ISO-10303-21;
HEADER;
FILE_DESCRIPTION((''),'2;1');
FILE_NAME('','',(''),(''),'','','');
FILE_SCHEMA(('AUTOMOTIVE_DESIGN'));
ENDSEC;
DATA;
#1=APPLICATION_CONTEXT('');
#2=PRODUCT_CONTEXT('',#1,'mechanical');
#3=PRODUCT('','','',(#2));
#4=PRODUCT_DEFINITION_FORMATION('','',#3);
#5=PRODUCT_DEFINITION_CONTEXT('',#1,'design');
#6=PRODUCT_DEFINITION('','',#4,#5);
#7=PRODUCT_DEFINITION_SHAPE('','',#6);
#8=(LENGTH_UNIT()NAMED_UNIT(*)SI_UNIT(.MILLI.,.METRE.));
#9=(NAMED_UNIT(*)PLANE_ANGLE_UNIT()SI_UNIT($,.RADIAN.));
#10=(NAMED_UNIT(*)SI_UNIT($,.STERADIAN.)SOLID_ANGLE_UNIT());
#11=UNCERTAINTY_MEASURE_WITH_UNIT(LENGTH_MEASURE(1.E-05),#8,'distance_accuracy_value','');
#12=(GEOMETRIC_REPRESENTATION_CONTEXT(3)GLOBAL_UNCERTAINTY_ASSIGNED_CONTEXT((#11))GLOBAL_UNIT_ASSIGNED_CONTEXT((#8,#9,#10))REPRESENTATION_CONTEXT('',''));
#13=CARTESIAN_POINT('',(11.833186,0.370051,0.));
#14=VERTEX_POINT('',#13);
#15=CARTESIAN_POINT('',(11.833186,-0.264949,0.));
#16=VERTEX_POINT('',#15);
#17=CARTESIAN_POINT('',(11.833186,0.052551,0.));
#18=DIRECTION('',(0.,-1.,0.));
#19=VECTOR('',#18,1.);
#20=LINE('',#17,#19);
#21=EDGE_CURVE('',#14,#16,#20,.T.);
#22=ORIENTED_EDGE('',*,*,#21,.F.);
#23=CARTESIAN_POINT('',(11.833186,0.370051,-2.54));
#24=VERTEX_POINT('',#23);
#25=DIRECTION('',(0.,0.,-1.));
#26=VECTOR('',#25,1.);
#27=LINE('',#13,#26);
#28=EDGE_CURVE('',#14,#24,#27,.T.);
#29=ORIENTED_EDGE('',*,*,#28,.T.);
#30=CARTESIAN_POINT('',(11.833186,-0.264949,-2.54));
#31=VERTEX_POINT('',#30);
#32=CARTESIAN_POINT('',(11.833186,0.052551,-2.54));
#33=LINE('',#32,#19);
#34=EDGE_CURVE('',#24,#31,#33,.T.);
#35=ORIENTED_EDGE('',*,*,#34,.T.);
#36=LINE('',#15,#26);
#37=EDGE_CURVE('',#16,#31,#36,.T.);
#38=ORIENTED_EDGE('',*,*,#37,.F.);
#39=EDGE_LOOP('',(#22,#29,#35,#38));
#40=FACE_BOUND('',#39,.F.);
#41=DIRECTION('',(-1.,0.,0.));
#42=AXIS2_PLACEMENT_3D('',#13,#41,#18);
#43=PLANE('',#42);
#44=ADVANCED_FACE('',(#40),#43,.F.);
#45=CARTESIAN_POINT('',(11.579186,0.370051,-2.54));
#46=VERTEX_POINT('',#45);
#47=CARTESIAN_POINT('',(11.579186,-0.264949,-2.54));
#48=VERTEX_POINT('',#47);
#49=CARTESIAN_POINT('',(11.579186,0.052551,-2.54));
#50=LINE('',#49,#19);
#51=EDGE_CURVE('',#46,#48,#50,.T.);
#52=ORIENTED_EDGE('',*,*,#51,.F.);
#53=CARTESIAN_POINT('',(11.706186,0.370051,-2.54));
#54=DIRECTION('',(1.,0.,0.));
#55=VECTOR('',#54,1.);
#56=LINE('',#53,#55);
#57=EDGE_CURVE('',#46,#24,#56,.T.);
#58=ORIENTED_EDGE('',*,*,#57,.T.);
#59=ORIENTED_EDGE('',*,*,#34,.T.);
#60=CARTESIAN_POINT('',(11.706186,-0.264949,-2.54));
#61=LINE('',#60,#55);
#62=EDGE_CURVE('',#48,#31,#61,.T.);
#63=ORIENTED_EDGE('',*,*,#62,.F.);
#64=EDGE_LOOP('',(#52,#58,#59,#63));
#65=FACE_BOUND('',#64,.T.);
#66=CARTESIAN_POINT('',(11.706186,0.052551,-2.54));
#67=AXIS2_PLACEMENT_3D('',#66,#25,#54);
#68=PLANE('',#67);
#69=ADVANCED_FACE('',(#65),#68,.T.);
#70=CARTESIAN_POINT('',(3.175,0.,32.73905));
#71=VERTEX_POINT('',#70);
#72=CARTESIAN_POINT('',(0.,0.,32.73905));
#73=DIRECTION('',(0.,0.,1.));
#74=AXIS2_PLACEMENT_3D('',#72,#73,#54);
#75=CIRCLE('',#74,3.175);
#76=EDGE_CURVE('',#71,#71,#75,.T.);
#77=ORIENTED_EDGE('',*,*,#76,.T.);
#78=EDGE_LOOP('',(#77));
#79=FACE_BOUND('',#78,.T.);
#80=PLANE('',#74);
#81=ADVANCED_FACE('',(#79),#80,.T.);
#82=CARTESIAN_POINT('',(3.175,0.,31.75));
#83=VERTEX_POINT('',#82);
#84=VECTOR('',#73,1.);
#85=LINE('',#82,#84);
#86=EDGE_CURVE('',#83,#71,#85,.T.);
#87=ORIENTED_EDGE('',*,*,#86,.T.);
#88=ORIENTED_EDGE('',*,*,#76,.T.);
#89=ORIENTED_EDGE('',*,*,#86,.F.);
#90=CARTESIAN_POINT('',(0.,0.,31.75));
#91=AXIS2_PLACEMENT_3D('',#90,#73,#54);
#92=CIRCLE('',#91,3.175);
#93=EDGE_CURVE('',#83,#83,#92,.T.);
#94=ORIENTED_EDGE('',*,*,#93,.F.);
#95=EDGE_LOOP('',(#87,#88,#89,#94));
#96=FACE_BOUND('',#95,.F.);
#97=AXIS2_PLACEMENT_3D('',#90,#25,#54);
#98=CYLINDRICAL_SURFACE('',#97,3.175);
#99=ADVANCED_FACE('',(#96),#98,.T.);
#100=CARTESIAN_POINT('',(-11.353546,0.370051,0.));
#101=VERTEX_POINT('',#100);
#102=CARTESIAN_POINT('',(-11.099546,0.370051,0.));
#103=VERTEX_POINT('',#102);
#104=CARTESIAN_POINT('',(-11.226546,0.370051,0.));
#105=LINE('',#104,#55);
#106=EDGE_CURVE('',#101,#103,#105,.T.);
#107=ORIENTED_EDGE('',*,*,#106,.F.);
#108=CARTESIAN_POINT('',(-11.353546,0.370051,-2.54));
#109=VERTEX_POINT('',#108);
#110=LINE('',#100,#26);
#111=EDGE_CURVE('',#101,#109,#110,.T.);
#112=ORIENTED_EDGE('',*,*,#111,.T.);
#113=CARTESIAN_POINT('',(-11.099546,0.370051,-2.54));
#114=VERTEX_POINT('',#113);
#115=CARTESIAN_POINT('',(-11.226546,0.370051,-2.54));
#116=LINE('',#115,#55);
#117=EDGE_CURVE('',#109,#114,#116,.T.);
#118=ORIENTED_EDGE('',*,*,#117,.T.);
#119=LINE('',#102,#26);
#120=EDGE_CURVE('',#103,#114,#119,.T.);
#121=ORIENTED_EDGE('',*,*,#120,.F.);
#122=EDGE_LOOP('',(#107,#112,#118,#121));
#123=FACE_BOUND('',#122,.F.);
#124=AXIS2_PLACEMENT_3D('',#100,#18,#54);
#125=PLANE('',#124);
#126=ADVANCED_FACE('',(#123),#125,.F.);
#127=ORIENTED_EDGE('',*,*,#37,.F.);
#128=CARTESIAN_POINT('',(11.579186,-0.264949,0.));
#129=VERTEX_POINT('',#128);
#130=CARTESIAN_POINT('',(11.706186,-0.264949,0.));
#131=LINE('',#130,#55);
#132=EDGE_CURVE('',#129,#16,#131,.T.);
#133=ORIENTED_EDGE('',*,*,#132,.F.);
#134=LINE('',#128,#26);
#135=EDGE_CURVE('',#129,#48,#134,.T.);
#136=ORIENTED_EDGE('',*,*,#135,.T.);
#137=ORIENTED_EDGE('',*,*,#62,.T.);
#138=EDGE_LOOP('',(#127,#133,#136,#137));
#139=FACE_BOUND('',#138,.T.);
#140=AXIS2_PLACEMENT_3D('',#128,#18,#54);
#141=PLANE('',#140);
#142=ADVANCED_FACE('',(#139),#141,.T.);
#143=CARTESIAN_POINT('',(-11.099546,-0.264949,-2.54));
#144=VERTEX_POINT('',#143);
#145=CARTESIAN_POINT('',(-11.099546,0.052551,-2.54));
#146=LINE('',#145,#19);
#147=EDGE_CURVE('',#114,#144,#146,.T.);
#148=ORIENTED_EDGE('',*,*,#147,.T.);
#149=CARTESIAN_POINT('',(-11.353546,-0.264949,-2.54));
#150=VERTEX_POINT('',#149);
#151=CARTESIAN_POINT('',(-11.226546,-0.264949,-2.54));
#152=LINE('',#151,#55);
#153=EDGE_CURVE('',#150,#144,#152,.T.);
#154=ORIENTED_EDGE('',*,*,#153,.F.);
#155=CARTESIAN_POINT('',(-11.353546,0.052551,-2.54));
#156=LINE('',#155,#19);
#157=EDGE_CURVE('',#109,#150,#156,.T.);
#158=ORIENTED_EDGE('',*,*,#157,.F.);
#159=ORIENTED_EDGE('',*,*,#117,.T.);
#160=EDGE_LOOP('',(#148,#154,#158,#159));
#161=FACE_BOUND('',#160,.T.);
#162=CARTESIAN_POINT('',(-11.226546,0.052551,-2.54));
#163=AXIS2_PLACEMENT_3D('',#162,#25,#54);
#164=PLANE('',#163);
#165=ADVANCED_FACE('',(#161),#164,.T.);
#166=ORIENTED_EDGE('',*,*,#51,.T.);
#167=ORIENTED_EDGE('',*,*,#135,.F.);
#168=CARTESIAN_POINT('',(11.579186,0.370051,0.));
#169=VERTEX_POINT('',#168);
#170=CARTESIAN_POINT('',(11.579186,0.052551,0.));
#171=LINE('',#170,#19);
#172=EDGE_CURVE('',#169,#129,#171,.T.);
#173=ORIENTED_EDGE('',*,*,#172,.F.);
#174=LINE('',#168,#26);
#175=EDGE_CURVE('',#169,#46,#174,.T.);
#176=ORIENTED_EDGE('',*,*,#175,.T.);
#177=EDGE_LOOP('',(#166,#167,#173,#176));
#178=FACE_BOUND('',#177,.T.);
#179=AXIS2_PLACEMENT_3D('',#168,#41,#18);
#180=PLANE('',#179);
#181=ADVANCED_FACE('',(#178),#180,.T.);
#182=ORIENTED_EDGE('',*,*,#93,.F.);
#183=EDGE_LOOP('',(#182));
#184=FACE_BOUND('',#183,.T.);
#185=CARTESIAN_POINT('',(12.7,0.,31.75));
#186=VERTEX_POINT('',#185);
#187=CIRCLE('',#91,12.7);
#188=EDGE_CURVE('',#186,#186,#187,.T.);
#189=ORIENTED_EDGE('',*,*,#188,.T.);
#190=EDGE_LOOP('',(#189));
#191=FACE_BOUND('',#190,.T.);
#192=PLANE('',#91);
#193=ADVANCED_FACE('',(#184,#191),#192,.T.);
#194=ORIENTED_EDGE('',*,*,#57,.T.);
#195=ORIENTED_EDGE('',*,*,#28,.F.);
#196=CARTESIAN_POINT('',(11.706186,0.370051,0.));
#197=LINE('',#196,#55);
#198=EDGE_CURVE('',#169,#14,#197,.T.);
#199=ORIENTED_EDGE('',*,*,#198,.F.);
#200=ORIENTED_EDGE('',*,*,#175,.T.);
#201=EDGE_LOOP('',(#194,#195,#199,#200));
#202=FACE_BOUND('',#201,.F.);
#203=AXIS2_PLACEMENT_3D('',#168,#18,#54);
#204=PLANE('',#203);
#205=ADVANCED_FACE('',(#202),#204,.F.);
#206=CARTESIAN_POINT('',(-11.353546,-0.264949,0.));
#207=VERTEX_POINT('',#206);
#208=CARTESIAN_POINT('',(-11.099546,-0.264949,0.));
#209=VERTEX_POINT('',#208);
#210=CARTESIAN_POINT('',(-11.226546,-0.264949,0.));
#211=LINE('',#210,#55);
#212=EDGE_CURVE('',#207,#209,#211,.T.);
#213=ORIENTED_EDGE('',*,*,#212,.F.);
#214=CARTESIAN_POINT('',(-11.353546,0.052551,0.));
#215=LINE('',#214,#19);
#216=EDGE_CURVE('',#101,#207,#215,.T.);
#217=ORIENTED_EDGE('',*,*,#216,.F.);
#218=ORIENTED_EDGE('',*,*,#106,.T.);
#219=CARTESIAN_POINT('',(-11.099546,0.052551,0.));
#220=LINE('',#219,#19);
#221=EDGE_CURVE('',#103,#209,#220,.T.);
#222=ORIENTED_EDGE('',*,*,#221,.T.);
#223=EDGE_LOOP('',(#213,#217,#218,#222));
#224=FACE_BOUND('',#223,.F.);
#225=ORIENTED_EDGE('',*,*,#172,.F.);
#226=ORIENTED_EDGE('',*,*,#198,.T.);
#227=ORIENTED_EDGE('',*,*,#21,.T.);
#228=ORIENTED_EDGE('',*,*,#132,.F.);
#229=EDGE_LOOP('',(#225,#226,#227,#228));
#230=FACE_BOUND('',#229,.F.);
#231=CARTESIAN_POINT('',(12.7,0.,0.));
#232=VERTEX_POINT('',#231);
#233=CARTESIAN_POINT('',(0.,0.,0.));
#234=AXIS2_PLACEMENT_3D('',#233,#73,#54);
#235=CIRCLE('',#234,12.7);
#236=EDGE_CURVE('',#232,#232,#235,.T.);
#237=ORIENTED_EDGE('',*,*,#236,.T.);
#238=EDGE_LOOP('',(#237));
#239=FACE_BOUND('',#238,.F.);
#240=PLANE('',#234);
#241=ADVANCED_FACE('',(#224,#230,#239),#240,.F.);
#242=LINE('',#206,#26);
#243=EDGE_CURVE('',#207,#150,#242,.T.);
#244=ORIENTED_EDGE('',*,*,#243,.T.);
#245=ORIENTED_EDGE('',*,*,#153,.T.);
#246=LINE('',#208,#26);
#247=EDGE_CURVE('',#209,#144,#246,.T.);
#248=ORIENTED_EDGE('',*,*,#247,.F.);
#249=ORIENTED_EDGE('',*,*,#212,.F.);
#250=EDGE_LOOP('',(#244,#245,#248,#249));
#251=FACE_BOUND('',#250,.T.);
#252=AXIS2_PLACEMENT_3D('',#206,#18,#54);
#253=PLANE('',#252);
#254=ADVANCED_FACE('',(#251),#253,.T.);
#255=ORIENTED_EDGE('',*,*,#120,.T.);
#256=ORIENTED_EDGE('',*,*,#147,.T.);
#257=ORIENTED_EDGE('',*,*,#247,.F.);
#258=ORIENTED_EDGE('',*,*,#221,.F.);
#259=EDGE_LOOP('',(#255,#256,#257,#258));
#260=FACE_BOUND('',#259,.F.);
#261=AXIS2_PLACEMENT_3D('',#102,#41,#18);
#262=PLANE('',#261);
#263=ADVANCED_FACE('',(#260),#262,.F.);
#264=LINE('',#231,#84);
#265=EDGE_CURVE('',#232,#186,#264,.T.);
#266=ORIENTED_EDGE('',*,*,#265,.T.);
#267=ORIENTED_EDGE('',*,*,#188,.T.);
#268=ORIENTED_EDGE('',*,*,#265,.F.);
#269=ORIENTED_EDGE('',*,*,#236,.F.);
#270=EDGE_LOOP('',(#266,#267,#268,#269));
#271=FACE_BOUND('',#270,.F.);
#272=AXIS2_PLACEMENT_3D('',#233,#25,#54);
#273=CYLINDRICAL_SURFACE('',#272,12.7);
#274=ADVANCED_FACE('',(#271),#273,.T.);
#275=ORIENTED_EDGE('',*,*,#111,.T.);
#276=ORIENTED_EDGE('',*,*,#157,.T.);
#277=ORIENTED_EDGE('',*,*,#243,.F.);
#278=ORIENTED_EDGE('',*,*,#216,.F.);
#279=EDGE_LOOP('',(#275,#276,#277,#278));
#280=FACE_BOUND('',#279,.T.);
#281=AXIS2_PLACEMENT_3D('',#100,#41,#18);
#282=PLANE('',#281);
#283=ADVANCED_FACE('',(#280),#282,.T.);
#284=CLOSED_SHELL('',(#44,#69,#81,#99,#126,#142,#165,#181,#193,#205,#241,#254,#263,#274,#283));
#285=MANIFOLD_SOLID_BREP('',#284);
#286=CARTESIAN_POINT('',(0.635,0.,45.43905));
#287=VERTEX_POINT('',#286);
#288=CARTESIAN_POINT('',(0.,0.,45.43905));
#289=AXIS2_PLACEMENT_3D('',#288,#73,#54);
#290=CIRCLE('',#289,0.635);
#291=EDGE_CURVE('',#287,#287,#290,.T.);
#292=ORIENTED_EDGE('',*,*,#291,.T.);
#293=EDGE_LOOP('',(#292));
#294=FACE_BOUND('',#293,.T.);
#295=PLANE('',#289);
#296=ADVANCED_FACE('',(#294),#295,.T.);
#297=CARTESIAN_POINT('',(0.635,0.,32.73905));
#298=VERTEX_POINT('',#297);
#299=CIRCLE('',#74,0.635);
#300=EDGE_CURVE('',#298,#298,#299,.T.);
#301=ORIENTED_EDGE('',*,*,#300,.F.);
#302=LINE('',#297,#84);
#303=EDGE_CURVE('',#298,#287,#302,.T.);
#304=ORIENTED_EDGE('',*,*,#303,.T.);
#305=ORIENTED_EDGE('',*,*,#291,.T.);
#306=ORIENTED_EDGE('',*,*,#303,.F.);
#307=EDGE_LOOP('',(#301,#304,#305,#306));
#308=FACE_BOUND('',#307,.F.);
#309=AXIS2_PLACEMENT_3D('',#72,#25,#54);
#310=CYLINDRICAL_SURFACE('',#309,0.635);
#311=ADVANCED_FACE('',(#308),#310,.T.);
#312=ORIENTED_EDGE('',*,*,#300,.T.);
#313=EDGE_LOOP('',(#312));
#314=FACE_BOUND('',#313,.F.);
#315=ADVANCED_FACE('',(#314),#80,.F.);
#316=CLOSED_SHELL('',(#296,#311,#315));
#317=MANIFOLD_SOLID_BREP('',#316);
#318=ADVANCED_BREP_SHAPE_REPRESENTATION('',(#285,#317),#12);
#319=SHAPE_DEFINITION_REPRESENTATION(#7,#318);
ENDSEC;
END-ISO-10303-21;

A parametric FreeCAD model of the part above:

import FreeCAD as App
import Part
import Sketcher
from FreeCAD import Vector
Q = App.Units.Quantity


def add_polygon(sketch, points):
    """Adds a closed chain of lines whose ends are joined by coincident constraints."""
    first, n = sketch.GeometryCount, len(points)
    for a, b in zip(points, points[1:] + points[:1]):
        sketch.addGeometry(Part.LineSegment(App.Vector(*a, 0), App.Vector(*b, 0)), False)
    for i in range(n):
        sketch.addConstraint(Sketcher.Constraint("Coincident", first + i, 2, first + (i + 1) % n, 1))

doc = App.newDocument("Part")
body = doc.addObject("PartDesign::Body", "Body")

# Sketch on XY plane
sketch1 = body.newObject("Sketcher::SketchObject", "Sketch")
sketch1.AttachmentSupport = (doc.getObject("XY_Plane"), [""])
sketch1.MapMode = "FlatFace"
sketch1.addGeometry(Part.Circle(Vector(0, 0, 0), Vector(0, 0, 1), 13), False)
sketch1.addConstraint([
    Sketcher.Constraint("Coincident", 0, 3, -1, 1),
    Sketcher.Constraint("Diameter", 0, Q("1 in")),
])
pad1 = body.newObject("PartDesign::Pad", "Pad")
pad1.Profile = sketch1
pad1.Length = Q("1.25 in")

# Sketch on XY plane
sketch2 = body.newObject("Sketcher::SketchObject", "Sketch001")
sketch2.AttachmentSupport = (doc.getObject("XY_Plane"), [""])
sketch2.MapMode = "FlatFace"
sketch2.AttachmentOffset = App.Placement(Vector(0, 0, 1.25 * 25.4), App.Rotation())
sketch2.addGeometry(Part.Circle(Vector(0, 0, 0), Vector(0, 0, 1), 3.2), False)
sketch2.addConstraint([
    Sketcher.Constraint("Coincident", 0, 3, -1, 1),
    Sketcher.Constraint("Diameter", 0, Q("0.25 in")),
])
pad2 = body.newObject("PartDesign::Pad", "Pad001")
pad2.Profile = sketch2
pad2.Length = 0.98905

# Sketch on XY plane
sketch3 = body.newObject("Sketcher::SketchObject", "Sketch002")
sketch3.AttachmentSupport = (doc.getObject("XY_Plane"), [""])
sketch3.MapMode = "FlatFace"
add_polygon(sketch3, [(11.58, -0.26), (11.58, 0.37), (11.83, 0.37), (11.83, -0.26)])  # lines 0-3
add_polygon(sketch3, [(-11.35, -0.26), (-11.35, 0.37), (-11.1, 0.37), (-11.1, -0.26)])  # lines 4-7
sketch3.addConstraint([
    Sketcher.Constraint("Vertical", 0),
    Sketcher.Constraint("Horizontal", 1),
    Sketcher.Constraint("Vertical", 2),
    Sketcher.Constraint("Horizontal", 3),
    Sketcher.Constraint("Vertical", 4),
    Sketcher.Constraint("Horizontal", 5),
    Sketcher.Constraint("Vertical", 6),
    Sketcher.Constraint("Horizontal", 7),
    Sketcher.Constraint("Horizontal", 1, 2, 4, 2),
    Sketcher.Constraint("Horizontal", 3, 2, 6, 2),
    Sketcher.Constraint("Equal", 3, 5),
    Sketcher.Constraint("DistanceX", 1, 1, 1, 2, Q("0.01 in")),
    Sketcher.Constraint("DistanceY", 0, 1, 0, 2, Q("0.025 in")),
    Sketcher.Constraint("DistanceY", -1, 1, 0, 2, 0.370051),
    Sketcher.Constraint("DistanceX", 4, 2, 1, 2, 23.186732),
    Sketcher.Constraint("DistanceX", -1, 1, 0, 2, 11.579186),
])
pad3 = body.newObject("PartDesign::Pad", "Pad002")
pad3.Profile = sketch3
pad3.Length = Q("0.1 in")
pad3.Reversed = True
body2 = doc.addObject("PartDesign::Body", "Body001")

# Sketch on XY plane
sketch4 = body2.newObject("Sketcher::SketchObject", "Sketch003")
sketch4.AttachmentSupport = (doc.getObject("XY_Plane001"), [""])
sketch4.MapMode = "FlatFace"
sketch4.AttachmentOffset = App.Placement(Vector(0, 0, 32.73905), App.Rotation())
sketch4.addGeometry(Part.Circle(Vector(0, 0, 0), Vector(0, 0, 1), 0.6), False)
sketch4.addConstraint([
    Sketcher.Constraint("Coincident", 0, 3, -1, 1),
    Sketcher.Constraint("Diameter", 0, Q("0.05 in")),
])
pad4 = body2.newObject("PartDesign::Pad", "Pad003")
pad4.Profile = sketch4
pad4.Length = Q("0.5 in")

doc.recompute()
